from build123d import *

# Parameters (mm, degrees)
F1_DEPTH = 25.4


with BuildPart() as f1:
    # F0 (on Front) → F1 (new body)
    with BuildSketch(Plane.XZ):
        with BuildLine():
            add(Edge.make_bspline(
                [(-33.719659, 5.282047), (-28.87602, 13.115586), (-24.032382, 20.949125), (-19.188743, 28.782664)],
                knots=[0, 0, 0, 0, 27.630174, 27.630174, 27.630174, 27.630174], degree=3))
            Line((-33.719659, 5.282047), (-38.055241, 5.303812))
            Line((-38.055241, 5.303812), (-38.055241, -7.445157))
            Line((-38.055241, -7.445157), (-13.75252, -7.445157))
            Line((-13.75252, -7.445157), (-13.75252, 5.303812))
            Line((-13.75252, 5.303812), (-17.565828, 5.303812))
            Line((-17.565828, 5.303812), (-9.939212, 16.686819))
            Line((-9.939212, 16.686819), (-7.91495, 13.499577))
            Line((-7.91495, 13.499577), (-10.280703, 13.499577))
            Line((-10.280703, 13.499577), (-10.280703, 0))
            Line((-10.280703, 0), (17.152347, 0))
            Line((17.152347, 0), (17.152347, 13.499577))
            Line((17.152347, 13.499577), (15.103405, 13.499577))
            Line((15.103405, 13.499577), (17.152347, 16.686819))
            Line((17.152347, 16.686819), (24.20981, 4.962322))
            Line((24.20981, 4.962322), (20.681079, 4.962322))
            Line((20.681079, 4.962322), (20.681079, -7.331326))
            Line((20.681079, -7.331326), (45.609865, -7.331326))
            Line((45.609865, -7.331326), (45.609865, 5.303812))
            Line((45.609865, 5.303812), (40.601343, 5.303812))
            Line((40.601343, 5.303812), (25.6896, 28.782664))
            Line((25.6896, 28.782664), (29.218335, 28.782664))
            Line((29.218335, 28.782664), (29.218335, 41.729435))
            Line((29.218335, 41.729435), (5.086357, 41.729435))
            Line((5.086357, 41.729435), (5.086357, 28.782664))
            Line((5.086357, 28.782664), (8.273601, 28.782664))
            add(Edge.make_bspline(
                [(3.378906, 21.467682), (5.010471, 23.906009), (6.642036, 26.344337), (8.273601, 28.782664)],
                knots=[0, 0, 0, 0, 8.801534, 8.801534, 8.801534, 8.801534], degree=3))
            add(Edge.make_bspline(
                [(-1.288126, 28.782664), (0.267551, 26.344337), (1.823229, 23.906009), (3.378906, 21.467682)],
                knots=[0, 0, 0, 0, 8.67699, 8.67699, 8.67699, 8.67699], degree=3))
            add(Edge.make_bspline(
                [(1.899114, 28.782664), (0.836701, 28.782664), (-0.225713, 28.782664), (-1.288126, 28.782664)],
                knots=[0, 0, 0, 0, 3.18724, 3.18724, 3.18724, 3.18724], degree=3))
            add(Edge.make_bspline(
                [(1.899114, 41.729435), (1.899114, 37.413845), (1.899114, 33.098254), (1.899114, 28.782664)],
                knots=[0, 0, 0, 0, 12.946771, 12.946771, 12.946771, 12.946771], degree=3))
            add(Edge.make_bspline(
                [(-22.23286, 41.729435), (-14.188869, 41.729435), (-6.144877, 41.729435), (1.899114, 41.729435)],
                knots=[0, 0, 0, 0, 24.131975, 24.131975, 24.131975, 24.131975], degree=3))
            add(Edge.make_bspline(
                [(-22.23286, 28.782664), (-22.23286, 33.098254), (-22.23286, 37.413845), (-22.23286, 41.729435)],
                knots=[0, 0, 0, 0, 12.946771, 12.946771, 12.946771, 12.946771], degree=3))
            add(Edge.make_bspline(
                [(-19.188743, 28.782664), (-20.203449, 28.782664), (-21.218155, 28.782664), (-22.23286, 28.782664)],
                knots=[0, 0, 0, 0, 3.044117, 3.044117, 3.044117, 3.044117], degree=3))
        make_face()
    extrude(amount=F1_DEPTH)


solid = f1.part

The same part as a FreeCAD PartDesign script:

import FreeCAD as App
import Part
import Sketcher
Q = App.Units.Quantity

doc = App.newDocument("Part")
body = doc.addObject("PartDesign::Body", "Body")

sketch1 = body.newObject("Sketcher::SketchObject", "Sketch")
sketch1.AttachmentSupport = (doc.getObject("XZ_Plane"), [""])
sketch1.MapMode = "FlatFace"
sketch1.addGeometry([
    Part.BSplineCurve([App.Vector(-33.719659, 5.282047, 0), App.Vector(-28.87602, 13.115586, 0), App.Vector(-24.032382, 20.949125, 0), App.Vector(-19.188743, 28.782664, 0)], [4, 4], [0, 27.630174], False, 3, [1, 1, 1, 1], False),
    Part.LineSegment(App.Vector(-33.719659, 5.282047, 0), App.Vector(-38.055241, 5.303812, 0)),
    Part.LineSegment(App.Vector(-38.055241, 5.303812, 0), App.Vector(-38.055241, -7.445157, 0)),
    Part.LineSegment(App.Vector(-38.055241, -7.445157, 0), App.Vector(-13.75252, -7.445157, 0)),
    Part.LineSegment(App.Vector(-13.75252, -7.445157, 0), App.Vector(-13.75252, 5.303812, 0)),
    Part.LineSegment(App.Vector(-13.75252, 5.303812, 0), App.Vector(-17.565828, 5.303812, 0)),
    Part.LineSegment(App.Vector(-17.565828, 5.303812, 0), App.Vector(-9.939212, 16.686819, 0)),
    Part.LineSegment(App.Vector(-9.939212, 16.686819, 0), App.Vector(-7.91495, 13.499577, 0)),
    Part.LineSegment(App.Vector(-7.91495, 13.499577, 0), App.Vector(-10.280703, 13.499577, 0)),
    Part.LineSegment(App.Vector(-10.280703, 13.499577, 0), App.Vector(-10.280703, 0, 0)),
    Part.LineSegment(App.Vector(-10.280703, 0, 0), App.Vector(17.152347, 0, 0)),
    Part.LineSegment(App.Vector(17.152347, 0, 0), App.Vector(17.152347, 13.499577, 0)),
    Part.LineSegment(App.Vector(17.152347, 13.499577, 0), App.Vector(15.103405, 13.499577, 0)),
    Part.LineSegment(App.Vector(15.103405, 13.499577, 0), App.Vector(17.152347, 16.686819, 0)),
    Part.LineSegment(App.Vector(17.152347, 16.686819, 0), App.Vector(24.20981, 4.962322, 0)),
    Part.LineSegment(App.Vector(24.20981, 4.962322, 0), App.Vector(20.681079, 4.962322, 0)),
    Part.LineSegment(App.Vector(20.681079, 4.962322, 0), App.Vector(20.681079, -7.331326, 0)),
    Part.LineSegment(App.Vector(20.681079, -7.331326, 0), App.Vector(45.609865, -7.331326, 0)),
    Part.LineSegment(App.Vector(45.609865, -7.331326, 0), App.Vector(45.609865, 5.303812, 0)),
    Part.LineSegment(App.Vector(45.609865, 5.303812, 0), App.Vector(40.601343, 5.303812, 0)),
    Part.LineSegment(App.Vector(40.601343, 5.303812, 0), App.Vector(25.6896, 28.782664, 0)),
    Part.LineSegment(App.Vector(25.6896, 28.782664, 0), App.Vector(29.218335, 28.782664, 0)),
    Part.LineSegment(App.Vector(29.218335, 28.782664, 0), App.Vector(29.218335, 41.729435, 0)),
    Part.LineSegment(App.Vector(29.218335, 41.729435, 0), App.Vector(5.086357, 41.729435, 0)),
    Part.LineSegment(App.Vector(5.086357, 41.729435, 0), App.Vector(5.086357, 28.782664, 0)),
    Part.LineSegment(App.Vector(5.086357, 28.782664, 0), App.Vector(8.273601, 28.782664, 0)),
    Part.BSplineCurve([App.Vector(3.378906, 21.467682, 0), App.Vector(5.010471, 23.906009, 0), App.Vector(6.642036, 26.344337, 0), App.Vector(8.273601, 28.782664, 0)], [4, 4], [0, 8.801534], False, 3, [1, 1, 1, 1], False),
    Part.BSplineCurve([App.Vector(-1.288126, 28.782664, 0), App.Vector(0.267551, 26.344337, 0), App.Vector(1.823229, 23.906009, 0), App.Vector(3.378906, 21.467682, 0)], [4, 4], [0, 8.67699], False, 3, [1, 1, 1, 1], False),
    Part.BSplineCurve([App.Vector(1.899114, 28.782664, 0), App.Vector(0.836701, 28.782664, 0), App.Vector(-0.225713, 28.782664, 0), App.Vector(-1.288126, 28.782664, 0)], [4, 4], [0, 3.18724], False, 3, [1, 1, 1, 1], False),
    Part.BSplineCurve([App.Vector(1.899114, 41.729435, 0), App.Vector(1.899114, 37.413845, 0), App.Vector(1.899114, 33.098254, 0), App.Vector(1.899114, 28.782664, 0)], [4, 4], [0, 12.946771], False, 3, [1, 1, 1, 1], False),
    Part.BSplineCurve([App.Vector(-22.23286, 41.729435, 0), App.Vector(-14.188869, 41.729435, 0), App.Vector(-6.144877, 41.729435, 0), App.Vector(1.899114, 41.729435, 0)], [4, 4], [0, 24.131975], False, 3, [1, 1, 1, 1], False),
    Part.BSplineCurve([App.Vector(-22.23286, 28.782664, 0), App.Vector(-22.23286, 33.098254, 0), App.Vector(-22.23286, 37.413845, 0), App.Vector(-22.23286, 41.729435, 0)], [4, 4], [0, 12.946771], False, 3, [1, 1, 1, 1], False),
    Part.BSplineCurve([App.Vector(-19.188743, 28.782664, 0), App.Vector(-20.203449, 28.782664, 0), App.Vector(-21.218155, 28.782664, 0), App.Vector(-22.23286, 28.782664, 0)], [4, 4], [0, 3.044117], False, 3, [1, 1, 1, 1], False),
], False)
sketch1.addConstraint([
    Sketcher.Constraint("Block", 0),
    Sketcher.Constraint("Block", 26),
    Sketcher.Constraint("Block", 27),
    Sketcher.Constraint("Block", 28),
    Sketcher.Constraint("Block", 29),
    Sketcher.Constraint("Block", 30),
    Sketcher.Constraint("Block", 31),
    Sketcher.Constraint("Block", 32),
    Sketcher.Constraint("Coincident", 0, 1, 1, 1),
    Sketcher.Constraint("Coincident", 1, 2, 2, 1),
    Sketcher.Constraint("Coincident", 2, 2, 3, 1),
    Sketcher.Constraint("Coincident", 3, 2, 4, 1),
    Sketcher.Constraint("Coincident", 4, 2, 5, 1),
    Sketcher.Constraint("Coincident", 5, 2, 6, 1),
    Sketcher.Constraint("Coincident", 6, 2, 7, 1),
    Sketcher.Constraint("Coincident", 7, 2, 8, 1),
    Sketcher.Constraint("Coincident", 8, 2, 9, 1),
    Sketcher.Constraint("Coincident", 9, 2, 10, 1),
    Sketcher.Constraint("Coincident", 10, 2, 11, 1),
    Sketcher.Constraint("Coincident", 11, 2, 12, 1),
    Sketcher.Constraint("Coincident", 12, 2, 13, 1),
    Sketcher.Constraint("Coincident", 13, 2, 14, 1),
    Sketcher.Constraint("Coincident", 14, 2, 15, 1),
    Sketcher.Constraint("Coincident", 15, 2, 16, 1),
    Sketcher.Constraint("Coincident", 16, 2, 17, 1),
    Sketcher.Constraint("Coincident", 17, 2, 18, 1),
    Sketcher.Constraint("Coincident", 18, 2, 19, 1),
    Sketcher.Constraint("Coincident", 19, 2, 20, 1),
    Sketcher.Constraint("Coincident", 20, 2, 21, 1),
    Sketcher.Constraint("Coincident", 21, 2, 22, 1),
    Sketcher.Constraint("Coincident", 22, 2, 23, 1),
    Sketcher.Constraint("Coincident", 23, 2, 24, 1),
    Sketcher.Constraint("Coincident", 24, 2, 25, 1),
    Sketcher.Constraint("Coincident", 25, 2, 26, 2),
    Sketcher.Constraint("Vertical", 2),
    Sketcher.Constraint("Horizontal", 3),
    Sketcher.Constraint("Vertical", 4),
    Sketcher.Constraint("Horizontal", 5),
    Sketcher.Constraint("Horizontal", 8),
    Sketcher.Constraint("Vertical", 9),
    Sketcher.Constraint("Horizontal", 10),
    Sketcher.Constraint("Vertical", 11),
    Sketcher.Constraint("Horizontal", 12),
    Sketcher.Constraint("Horizontal", 15),
    Sketcher.Constraint("Vertical", 16),
    Sketcher.Constraint("Horizontal", 17),
    Sketcher.Constraint("Vertical", 18),
    Sketcher.Constraint("Horizontal", 19),
    Sketcher.Constraint("Horizontal", 21),
    Sketcher.Constraint("Vertical", 22),
    Sketcher.Constraint("Horizontal", 23),
    Sketcher.Constraint("Vertical", 24),
    Sketcher.Constraint("Horizontal", 25),
    Sketcher.Constraint("PointOnObject", 9, 2, -1),
    Sketcher.Constraint("Parallel", 7, 20),
    Sketcher.Constraint("Horizontal", 1, 2, 4, 2),
    Sketcher.Constraint("Horizontal", 8, 2, 11, 2),
    Sketcher.Constraint("Horizontal", 6, 2, 13, 2),
    Sketcher.Constraint("Horizontal", 5, 2, 18, 2),
    Sketcher.Constraint("Horizontal", 21, 2, 24, 2),
    Sketcher.Constraint("Vertical", 11, 2, 13, 2),
    Sketcher.Constraint("DistanceX", 3, 1, 3, 2, Q("0.9568 in")),
    Sketcher.Constraint("DistanceX", 10, 1, 10, 2, 27.43305),
    Sketcher.Constraint("DistanceX", 12, 2, 12, 1, 2.048942),
    Sketcher.Constraint("DistanceX", 15, 2, 15, 1, 3.528731),
    Sketcher.Constraint("DistanceX", 19, 2, 19, 1, 5.008522),
    Sketcher.Constraint("DistanceX", 23, 2, 23, 1, 24.131978),
    Sketcher.Constraint("DistanceY", 2, 2, 2, 1, 12.748969),
    Sketcher.Constraint("DistanceY", 16, 2, 16, 1, 12.293648),
    Sketcher.Constraint("DistanceY", 22, 1, 22, 2, 12.946771),
    Sketcher.Constraint("DistanceX", -1, 1, 20, 2, 25.6896),
    Sketcher.Constraint("Distance", 7, 3.775731),
    Sketcher.Constraint("Distance", 13, 3.78902),
    Sketcher.Constraint("Distance", 14, 13.684722),
    Sketcher.Constraint("DistanceX", 5, 2, 5, 1, 3.813308),
    Sketcher.Constraint("DistanceX", 8, 2, 8, 1, 2.365753),
    Sketcher.Constraint("DistanceX", 17, 1, 17, 2, 24.928786),
    Sketcher.Constraint("DistanceX", 21, 1, 21, 2, 3.528735),
    Sketcher.Constraint("DistanceY", 9, 2, 9, 1, 13.499577),
    Sketcher.Constraint("DistanceY", 18, 1, 18, 2, 12.635138),
    Sketcher.Constraint("DistanceX", 1, 2, -1, 1, 38.055241),
    Sketcher.Constraint("DistanceY", -1, 1, 1, 2, 5.303812),
])
pad1 = body.newObject("PartDesign::Pad", "Pad")
pad1.Profile = sketch1
pad1.Length = Q("1 in")

doc.recompute()
